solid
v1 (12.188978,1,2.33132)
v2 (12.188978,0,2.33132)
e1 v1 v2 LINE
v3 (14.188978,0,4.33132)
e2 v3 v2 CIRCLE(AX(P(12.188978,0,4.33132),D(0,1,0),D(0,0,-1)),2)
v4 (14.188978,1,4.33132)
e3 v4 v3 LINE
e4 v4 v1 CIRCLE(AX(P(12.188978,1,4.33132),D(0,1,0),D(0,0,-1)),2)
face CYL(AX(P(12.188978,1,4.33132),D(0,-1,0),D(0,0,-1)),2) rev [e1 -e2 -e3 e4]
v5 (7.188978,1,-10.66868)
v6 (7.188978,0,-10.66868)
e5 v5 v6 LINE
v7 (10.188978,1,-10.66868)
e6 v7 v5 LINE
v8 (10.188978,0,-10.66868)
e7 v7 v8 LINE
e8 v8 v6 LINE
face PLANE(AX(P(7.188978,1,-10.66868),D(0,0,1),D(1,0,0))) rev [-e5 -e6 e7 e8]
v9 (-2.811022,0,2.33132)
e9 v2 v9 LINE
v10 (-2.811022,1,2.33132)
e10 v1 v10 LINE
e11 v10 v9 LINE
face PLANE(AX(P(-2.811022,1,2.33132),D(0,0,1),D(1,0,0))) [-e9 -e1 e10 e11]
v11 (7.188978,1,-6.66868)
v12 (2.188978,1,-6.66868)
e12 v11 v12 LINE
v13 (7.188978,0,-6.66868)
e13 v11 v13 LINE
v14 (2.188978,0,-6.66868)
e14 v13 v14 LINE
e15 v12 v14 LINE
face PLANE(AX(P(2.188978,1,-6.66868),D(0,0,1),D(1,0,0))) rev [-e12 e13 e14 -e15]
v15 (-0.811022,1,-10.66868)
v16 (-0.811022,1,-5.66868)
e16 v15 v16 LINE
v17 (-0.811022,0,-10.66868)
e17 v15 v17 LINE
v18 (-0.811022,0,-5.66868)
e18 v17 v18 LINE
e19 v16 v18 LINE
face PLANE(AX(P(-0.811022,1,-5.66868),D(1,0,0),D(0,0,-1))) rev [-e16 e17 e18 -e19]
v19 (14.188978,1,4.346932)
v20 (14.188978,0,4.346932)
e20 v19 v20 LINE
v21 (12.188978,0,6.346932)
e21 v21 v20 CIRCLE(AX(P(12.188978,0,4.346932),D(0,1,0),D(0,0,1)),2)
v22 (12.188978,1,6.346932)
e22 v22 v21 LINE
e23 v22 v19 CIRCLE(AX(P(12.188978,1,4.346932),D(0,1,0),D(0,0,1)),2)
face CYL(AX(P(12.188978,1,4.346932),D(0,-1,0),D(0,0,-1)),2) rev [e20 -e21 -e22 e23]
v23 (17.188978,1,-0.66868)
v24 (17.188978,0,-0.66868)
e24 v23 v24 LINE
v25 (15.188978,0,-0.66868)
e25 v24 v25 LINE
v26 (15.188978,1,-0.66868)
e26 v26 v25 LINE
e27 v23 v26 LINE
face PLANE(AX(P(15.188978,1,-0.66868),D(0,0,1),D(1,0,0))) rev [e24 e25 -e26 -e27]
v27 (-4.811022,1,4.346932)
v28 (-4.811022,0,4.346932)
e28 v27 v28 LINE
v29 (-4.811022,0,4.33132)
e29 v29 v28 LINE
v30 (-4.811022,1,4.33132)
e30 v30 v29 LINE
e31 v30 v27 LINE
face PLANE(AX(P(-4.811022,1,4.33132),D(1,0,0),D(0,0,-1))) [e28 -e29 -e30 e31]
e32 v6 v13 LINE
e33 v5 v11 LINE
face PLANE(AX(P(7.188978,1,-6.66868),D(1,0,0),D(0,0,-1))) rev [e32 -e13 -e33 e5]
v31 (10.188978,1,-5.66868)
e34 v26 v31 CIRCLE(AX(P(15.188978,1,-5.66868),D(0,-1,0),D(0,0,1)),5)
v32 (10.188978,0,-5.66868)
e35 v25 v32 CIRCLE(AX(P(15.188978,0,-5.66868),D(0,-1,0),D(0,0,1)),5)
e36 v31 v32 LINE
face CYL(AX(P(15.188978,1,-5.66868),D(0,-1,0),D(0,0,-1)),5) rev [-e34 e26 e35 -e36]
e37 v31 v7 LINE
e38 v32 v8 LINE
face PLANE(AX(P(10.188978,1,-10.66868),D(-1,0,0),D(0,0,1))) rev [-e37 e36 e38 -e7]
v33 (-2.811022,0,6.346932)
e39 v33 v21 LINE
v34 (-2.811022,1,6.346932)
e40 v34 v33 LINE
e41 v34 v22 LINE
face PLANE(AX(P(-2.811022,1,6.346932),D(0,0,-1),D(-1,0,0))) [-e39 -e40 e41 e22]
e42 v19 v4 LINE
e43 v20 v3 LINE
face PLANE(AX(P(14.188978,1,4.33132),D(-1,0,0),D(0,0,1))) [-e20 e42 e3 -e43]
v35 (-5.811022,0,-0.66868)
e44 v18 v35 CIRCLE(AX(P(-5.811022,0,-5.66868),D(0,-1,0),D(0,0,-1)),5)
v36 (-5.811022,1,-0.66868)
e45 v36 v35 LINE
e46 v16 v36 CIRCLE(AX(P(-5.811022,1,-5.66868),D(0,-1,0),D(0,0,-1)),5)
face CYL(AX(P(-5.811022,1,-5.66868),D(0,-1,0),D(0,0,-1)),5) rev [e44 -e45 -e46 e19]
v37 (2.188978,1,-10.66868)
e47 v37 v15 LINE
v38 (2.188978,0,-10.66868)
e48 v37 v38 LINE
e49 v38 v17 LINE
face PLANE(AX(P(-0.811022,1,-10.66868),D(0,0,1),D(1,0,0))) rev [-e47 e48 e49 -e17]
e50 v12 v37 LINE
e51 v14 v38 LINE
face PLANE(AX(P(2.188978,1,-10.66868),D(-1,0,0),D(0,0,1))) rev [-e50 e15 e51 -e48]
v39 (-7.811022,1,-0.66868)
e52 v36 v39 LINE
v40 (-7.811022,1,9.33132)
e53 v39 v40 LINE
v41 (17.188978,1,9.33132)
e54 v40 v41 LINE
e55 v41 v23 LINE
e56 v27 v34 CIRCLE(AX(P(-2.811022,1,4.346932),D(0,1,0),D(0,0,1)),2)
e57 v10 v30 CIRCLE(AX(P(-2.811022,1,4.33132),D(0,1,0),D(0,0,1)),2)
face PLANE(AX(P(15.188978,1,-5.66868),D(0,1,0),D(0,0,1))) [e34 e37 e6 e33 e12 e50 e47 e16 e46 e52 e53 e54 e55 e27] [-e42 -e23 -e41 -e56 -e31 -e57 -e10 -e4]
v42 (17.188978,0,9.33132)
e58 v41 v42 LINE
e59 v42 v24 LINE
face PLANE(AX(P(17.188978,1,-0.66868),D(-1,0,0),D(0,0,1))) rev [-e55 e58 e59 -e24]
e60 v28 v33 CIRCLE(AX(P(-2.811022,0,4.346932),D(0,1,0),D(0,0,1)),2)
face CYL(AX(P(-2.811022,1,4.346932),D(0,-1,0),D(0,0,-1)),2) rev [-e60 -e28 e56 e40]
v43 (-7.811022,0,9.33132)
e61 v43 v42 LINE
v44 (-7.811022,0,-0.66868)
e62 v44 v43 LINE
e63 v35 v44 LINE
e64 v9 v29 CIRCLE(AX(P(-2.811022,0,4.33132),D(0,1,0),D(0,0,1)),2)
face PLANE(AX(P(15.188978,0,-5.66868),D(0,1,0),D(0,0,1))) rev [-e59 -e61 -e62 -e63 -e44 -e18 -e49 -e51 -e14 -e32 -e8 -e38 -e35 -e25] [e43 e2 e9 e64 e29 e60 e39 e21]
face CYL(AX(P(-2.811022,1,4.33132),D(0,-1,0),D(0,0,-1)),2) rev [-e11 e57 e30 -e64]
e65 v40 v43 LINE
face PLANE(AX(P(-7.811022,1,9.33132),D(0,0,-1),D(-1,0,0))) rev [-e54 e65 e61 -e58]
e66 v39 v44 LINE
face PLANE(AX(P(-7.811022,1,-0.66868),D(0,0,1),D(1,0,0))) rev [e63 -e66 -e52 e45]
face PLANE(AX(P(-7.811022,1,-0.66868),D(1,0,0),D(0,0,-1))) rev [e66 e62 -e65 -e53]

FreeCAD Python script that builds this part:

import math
import FreeCAD as App
import Part
import Sketcher

doc = App.newDocument("Part")
body = doc.addObject("PartDesign::Body", "Body")

# Sketch on XZ plane
sketch1 = body.newObject("Sketcher::SketchObject", "Sketch")
sketch1.AttachmentSupport = (doc.getObject("XZ_Plane"), [""])
sketch1.MapMode = "FlatFace"
sketch1.addGeometry(Part.LineSegment(App.Vector(-0.811022, -10.66868, 0), App.Vector(-0.811022, -5.66868, 0)), False)
sketch1.addGeometry(Part.ArcOfCircle(Part.Circle(App.Vector(-5.811022, -5.66868, 0), App.Vector(0, 0, 1), 5), math.radians(0), math.radians(90)), False)
sketch1.addGeometry(Part.LineSegment(App.Vector(-5.811022, -0.66868, 0), App.Vector(-7.811022, -0.66868, 0)), False)
sketch1.addGeometry(Part.LineSegment(App.Vector(-7.811022, -0.66868, 0), App.Vector(-7.811022, 9.33132, 0)), False)
sketch1.addGeometry(Part.LineSegment(App.Vector(-7.811022, 9.33132, 0), App.Vector(17.188978, 9.33132, 0)), False)
sketch1.addGeometry(Part.LineSegment(App.Vector(17.188978, 9.33132, 0), App.Vector(17.188978, -0.66868, 0)), False)
sketch1.addGeometry(Part.LineSegment(App.Vector(17.188978, -0.66868, 0), App.Vector(15.188978, -0.66868, 0)), False)
sketch1.addGeometry(Part.ArcOfCircle(Part.Circle(App.Vector(15.188978, -5.66868, 0), App.Vector(0, 0, 1), 5), math.radians(90), math.radians(180)), False)
sketch1.addGeometry(Part.LineSegment(App.Vector(10.188978, -5.66868, 0), App.Vector(10.188978, -10.66868, 0)), False)
sketch1.addGeometry(Part.LineSegment(App.Vector(10.188978, -10.66868, 0), App.Vector(7.188978, -10.66868, 0)), False)
sketch1.addGeometry(Part.LineSegment(App.Vector(7.188978, -10.66868, 0), App.Vector(7.188978, -6.66868, 0)), False)
sketch1.addGeometry(Part.LineSegment(App.Vector(7.188978, -6.66868, 0), App.Vector(2.188978, -6.66868, 0)), False)
sketch1.addGeometry(Part.LineSegment(App.Vector(2.188978, -6.66868, 0), App.Vector(2.188978, -10.66868, 0)), False)
sketch1.addGeometry(Part.LineSegment(App.Vector(2.188978, -10.66868, 0), App.Vector(-0.811022, -10.66868, 0)), False)
sketch1.addGeometry(Part.LineSegment(App.Vector(-2.811022, 2.33132, 0), App.Vector(12.188978, 2.33132, 0)), False)
sketch1.addGeometry(Part.ArcOfCircle(Part.Circle(App.Vector(12.188978, 4.33132, 0), App.Vector(0, 0, 1), 2), math.radians(-90), math.radians(0)), False)
sketch1.addGeometry(Part.LineSegment(App.Vector(14.188978, 4.33132, 0), App.Vector(14.188978, 4.346932, 0)), False)
sketch1.addGeometry(Part.ArcOfCircle(Part.Circle(App.Vector(12.188978, 4.346932, 0), App.Vector(0, 0, 1), 2), math.radians(0), math.radians(90)), False)
sketch1.addGeometry(Part.LineSegment(App.Vector(12.188978, 6.346932, 0), App.Vector(-2.811022, 6.346932, 0)), False)
sketch1.addGeometry(Part.ArcOfCircle(Part.Circle(App.Vector(-2.811022, 4.346932, 0), App.Vector(0, 0, 1), 2), math.radians(90), math.radians(180)), False)
sketch1.addGeometry(Part.LineSegment(App.Vector(-4.811022, 4.346932, 0), App.Vector(-4.811022, 4.33132, 0)), False)
sketch1.addGeometry(Part.ArcOfCircle(Part.Circle(App.Vector(-2.811022, 4.33132, 0), App.Vector(0, 0, 1), 2), math.radians(-180), math.radians(-90)), False)
sketch1.addConstraint(Sketcher.Constraint("Tangent", 0, 2, 1, 1))
sketch1.addConstraint(Sketcher.Constraint("Tangent", 1, 2, 2, 1))
sketch1.addConstraint(Sketcher.Constraint("Coincident", 2, 2, 3, 1))
sketch1.addConstraint(Sketcher.Constraint("Coincident", 3, 2, 4, 1))
sketch1.addConstraint(Sketcher.Constraint("Coincident", 4, 2, 5, 1))
sketch1.addConstraint(Sketcher.Constraint("Coincident", 5, 2, 6, 1))
sketch1.addConstraint(Sketcher.Constraint("Tangent", 6, 2, 7, 1))
sketch1.addConstraint(Sketcher.Constraint("Tangent", 7, 2, 8, 1))
sketch1.addConstraint(Sketcher.Constraint("Coincident", 8, 2, 9, 1))
sketch1.addConstraint(Sketcher.Constraint("Coincident", 9, 2, 10, 1))
sketch1.addConstraint(Sketcher.Constraint("Coincident", 10, 2, 11, 1))
sketch1.addConstraint(Sketcher.Constraint("Coincident", 11, 2, 12, 1))
sketch1.addConstraint(Sketcher.Constraint("Coincident", 12, 2, 13, 1))
sketch1.addConstraint(Sketcher.Constraint("Coincident", 13, 2, 0, 1))
sketch1.addConstraint(Sketcher.Constraint("Tangent", 14, 2, 15, 1))
sketch1.addConstraint(Sketcher.Constraint("Tangent", 15, 2, 16, 1))
sketch1.addConstraint(Sketcher.Constraint("Tangent", 16, 2, 17, 1))
sketch1.addConstraint(Sketcher.Constraint("Tangent", 17, 2, 18, 1))
sketch1.addConstraint(Sketcher.Constraint("Tangent", 18, 2, 19, 1))
sketch1.addConstraint(Sketcher.Constraint("Tangent", 19, 2, 20, 1))
sketch1.addConstraint(Sketcher.Constraint("Tangent", 20, 2, 21, 1))
sketch1.addConstraint(Sketcher.Constraint("Tangent", 21, 2, 14, 1))
sketch1.addConstraint(Sketcher.Constraint("Vertical", 0))
sketch1.addConstraint(Sketcher.Constraint("Horizontal", 2))
sketch1.addConstraint(Sketcher.Constraint("Vertical", 3))
sketch1.addConstraint(Sketcher.Constraint("Horizontal", 4))
sketch1.addConstraint(Sketcher.Constraint("Vertical", 5))
sketch1.addConstraint(Sketcher.Constraint("Horizontal", 6))
sketch1.addConstraint(Sketcher.Constraint("Vertical", 8))
sketch1.addConstraint(Sketcher.Constraint("Horizontal", 9))
sketch1.addConstraint(Sketcher.Constraint("Vertical", 10))
sketch1.addConstraint(Sketcher.Constraint("Horizontal", 11))
sketch1.addConstraint(Sketcher.Constraint("Vertical", 12))
sketch1.addConstraint(Sketcher.Constraint("Horizontal", 13))
sketch1.addConstraint(Sketcher.Constraint("Horizontal", 14))
sketch1.addConstraint(Sketcher.Constraint("Vertical", 16))
sketch1.addConstraint(Sketcher.Constraint("Horizontal", 18))
sketch1.addConstraint(Sketcher.Constraint("Vertical", 20))
sketch1.addConstraint(Sketcher.Constraint("Equal", 1, 7))
sketch1.addConstraint(Sketcher.Constraint("Equal", 15, 17))
sketch1.addConstraint(Sketcher.Constraint("Equal", 17, 19))
sketch1.addConstraint(Sketcher.Constraint("Equal", 19, 21))
sketch1.addConstraint(Sketcher.Constraint("Horizontal", 1, 3, 7, 3))
sketch1.addConstraint(Sketcher.Constraint("Horizontal", 9, 2, 12, 2))
sketch1.addConstraint(Sketcher.Constraint("Equal", 2, 6))
sketch1.addConstraint(Sketcher.Constraint("Equal", 9, 13))
sketch1.addConstraint(Sketcher.Constraint("Equal", 11, 0))
sketch1.addConstraint(Sketcher.Constraint("Radius", 1, 5.0))
sketch1.addConstraint(Sketcher.Constraint("Radius", 15, 2.0))
sketch1.addConstraint(Sketcher.Constraint("DistanceX", 2, 2, 2, 1, 2.0))
sketch1.addConstraint(Sketcher.Constraint("DistanceX", 4, 1, 4, 2, 25.0))
sketch1.addConstraint(Sketcher.Constraint("DistanceX", 9, 2, 9, 1, 3.0))
sketch1.addConstraint(Sketcher.Constraint("DistanceX", 14, 1, 14, 2, 15.0))
sketch1.addConstraint(Sketcher.Constraint("DistanceY", 3, 1, 3, 2, 10.0))
sketch1.addConstraint(Sketcher.Constraint("DistanceY", 10, 1, 10, 2, 4.0))
sketch1.addConstraint(Sketcher.Constraint("DistanceX", 15, 3, 7, 3, 3.0))
sketch1.addConstraint(Sketcher.Constraint("DistanceY", 7, 3, 15, 3, 10.0))
sketch1.addConstraint(Sketcher.Constraint("DistanceY", 16, 1, 16, 2, 0.015612))
sketch1.addConstraint(Sketcher.Constraint("DistanceY", 1, 3, -1, 1, 5.66868))
sketch1.addConstraint(Sketcher.Constraint("DistanceX", 1, 3, -1, 1, 5.811022))
pad1 = body.newObject("PartDesign::Pad", "Pad")
pad1.Profile = sketch1
pad1.Length = 1
pad1.Reversed = True

doc.recompute()
